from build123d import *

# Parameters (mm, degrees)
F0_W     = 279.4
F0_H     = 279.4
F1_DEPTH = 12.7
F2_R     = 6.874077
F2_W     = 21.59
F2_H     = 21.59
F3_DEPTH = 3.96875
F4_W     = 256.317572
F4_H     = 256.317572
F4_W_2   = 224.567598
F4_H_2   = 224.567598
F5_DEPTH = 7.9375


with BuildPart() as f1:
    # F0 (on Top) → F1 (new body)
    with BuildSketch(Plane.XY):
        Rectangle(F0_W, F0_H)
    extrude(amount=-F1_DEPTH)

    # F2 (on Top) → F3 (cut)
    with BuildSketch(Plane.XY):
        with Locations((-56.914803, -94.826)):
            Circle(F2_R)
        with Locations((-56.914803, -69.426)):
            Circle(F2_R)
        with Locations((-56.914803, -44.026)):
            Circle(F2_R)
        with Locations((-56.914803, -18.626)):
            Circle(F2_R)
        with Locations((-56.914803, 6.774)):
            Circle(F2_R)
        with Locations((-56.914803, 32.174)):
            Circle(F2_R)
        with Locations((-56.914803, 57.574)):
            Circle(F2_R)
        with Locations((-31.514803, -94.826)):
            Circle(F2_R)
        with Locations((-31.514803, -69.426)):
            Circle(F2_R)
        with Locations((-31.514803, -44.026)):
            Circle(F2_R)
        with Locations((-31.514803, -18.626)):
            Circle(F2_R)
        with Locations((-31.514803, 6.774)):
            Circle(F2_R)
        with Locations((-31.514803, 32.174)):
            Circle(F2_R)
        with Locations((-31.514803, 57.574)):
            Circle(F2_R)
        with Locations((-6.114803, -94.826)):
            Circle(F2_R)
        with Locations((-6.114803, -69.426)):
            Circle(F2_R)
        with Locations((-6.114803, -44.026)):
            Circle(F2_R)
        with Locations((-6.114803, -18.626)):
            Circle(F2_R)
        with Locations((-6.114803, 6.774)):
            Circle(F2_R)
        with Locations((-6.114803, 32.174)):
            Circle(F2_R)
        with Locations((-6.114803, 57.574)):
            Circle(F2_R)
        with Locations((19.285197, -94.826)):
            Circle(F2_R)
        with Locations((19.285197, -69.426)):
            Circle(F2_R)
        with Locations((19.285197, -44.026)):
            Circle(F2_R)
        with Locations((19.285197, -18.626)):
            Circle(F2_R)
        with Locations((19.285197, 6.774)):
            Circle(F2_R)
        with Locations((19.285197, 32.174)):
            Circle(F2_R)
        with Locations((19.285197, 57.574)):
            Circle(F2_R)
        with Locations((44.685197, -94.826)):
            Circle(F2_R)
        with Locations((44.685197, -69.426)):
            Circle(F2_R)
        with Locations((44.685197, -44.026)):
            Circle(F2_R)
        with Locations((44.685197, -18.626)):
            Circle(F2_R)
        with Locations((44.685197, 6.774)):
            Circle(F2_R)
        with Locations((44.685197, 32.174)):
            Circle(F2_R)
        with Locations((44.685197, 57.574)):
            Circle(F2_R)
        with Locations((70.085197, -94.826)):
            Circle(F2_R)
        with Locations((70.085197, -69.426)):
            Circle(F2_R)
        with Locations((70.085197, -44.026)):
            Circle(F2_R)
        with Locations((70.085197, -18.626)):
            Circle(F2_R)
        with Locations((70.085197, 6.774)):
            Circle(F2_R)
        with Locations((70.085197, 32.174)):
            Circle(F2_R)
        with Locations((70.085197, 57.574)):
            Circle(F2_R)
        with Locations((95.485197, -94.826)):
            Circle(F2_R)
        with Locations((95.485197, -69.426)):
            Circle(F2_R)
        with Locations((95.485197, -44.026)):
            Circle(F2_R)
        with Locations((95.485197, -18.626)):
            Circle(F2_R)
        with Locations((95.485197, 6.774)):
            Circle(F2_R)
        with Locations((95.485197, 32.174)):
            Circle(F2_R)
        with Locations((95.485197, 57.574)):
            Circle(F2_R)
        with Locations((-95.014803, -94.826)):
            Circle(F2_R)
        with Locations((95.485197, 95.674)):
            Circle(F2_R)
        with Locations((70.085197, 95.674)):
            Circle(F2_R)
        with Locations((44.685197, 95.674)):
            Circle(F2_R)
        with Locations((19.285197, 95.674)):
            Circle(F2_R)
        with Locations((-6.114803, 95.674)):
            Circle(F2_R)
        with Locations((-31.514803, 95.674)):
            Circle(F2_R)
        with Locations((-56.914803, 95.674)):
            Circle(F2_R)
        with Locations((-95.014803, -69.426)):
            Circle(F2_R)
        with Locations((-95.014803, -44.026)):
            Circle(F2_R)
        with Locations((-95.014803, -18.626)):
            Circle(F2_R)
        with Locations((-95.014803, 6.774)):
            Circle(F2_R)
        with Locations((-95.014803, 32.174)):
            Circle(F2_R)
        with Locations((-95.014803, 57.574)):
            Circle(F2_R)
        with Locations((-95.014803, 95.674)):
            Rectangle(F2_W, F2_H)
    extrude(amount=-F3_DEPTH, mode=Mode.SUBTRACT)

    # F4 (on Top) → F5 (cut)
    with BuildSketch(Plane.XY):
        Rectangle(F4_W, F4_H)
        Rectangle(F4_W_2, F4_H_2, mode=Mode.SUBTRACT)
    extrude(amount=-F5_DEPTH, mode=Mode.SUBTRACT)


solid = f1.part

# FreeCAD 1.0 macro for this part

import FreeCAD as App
import Part
import Sketcher
Q = App.Units.Quantity

doc = App.newDocument("Part")
body = doc.addObject("PartDesign::Body", "Body")

# Sketch on XY plane
sketch1 = body.newObject("Sketcher::SketchObject", "Sketch")
sketch1.AttachmentSupport = (doc.getObject("XY_Plane"), [""])
sketch1.MapMode = "FlatFace"
sketch1.addGeometry([
    Part.LineSegment(App.Vector(-140, 140, 0), App.Vector(-140, -140, 0)),
    Part.LineSegment(App.Vector(-140, -140, 0), App.Vector(140, -140, 0)),
    Part.LineSegment(App.Vector(140, -140, 0), App.Vector(140, 140, 0)),
    Part.LineSegment(App.Vector(140, 140, 0), App.Vector(-140, 140, 0)),
], False)
sketch1.addConstraint([
    Sketcher.Constraint("Coincident", 0, 2, 1, 1),
    Sketcher.Constraint("Coincident", 1, 2, 2, 1),
    Sketcher.Constraint("Coincident", 2, 2, 3, 1),
    Sketcher.Constraint("Coincident", 3, 2, 0, 1),
    Sketcher.Constraint("Vertical", 0),
    Sketcher.Constraint("Horizontal", 1),
    Sketcher.Constraint("Vertical", 2),
    Sketcher.Constraint("Horizontal", 3),
    Sketcher.Constraint("Symmetric", 0, 2, 2, 2, -1, 1),
    Sketcher.Constraint("Equal", 3, 0),
    Sketcher.Constraint("DistanceX", 1, 1, 1, 2, Q("11 in")),
])
pad1 = body.newObject("PartDesign::Pad", "Pad")
pad1.Profile = sketch1
pad1.Length = Q("0.5 in")
pad1.Reversed = True

# Sketch on XY plane
sketch2 = body.newObject("Sketcher::SketchObject", "Sketch001")
sketch2.AttachmentSupport = (doc.getObject("XY_Plane"), [""])
sketch2.MapMode = "FlatFace"
sketch2.addGeometry([
    Part.Circle(App.Vector(-57, -95, 0), App.Vector(0, 0, 1), 7),  # 0
    Part.Circle(App.Vector(-57, -69, 0), App.Vector(0, 0, 1), 7),  # 1
    Part.Circle(App.Vector(-57, -44, 0), App.Vector(0, 0, 1), 7),  # 2
    Part.Circle(App.Vector(-57, -19, 0), App.Vector(0, 0, 1), 7),  # 3
    Part.Circle(App.Vector(-57, 7, 0), App.Vector(0, 0, 1), 7),  # 4
    Part.Circle(App.Vector(-57, 32, 0), App.Vector(0, 0, 1), 7),  # 5
    Part.Circle(App.Vector(-57, 58, 0), App.Vector(0, 0, 1), 7),  # 6
    Part.Circle(App.Vector(-32, -95, 0), App.Vector(0, 0, 1), 7),  # 7
    Part.Circle(App.Vector(-32, -69, 0), App.Vector(0, 0, 1), 7),  # 8
    Part.Circle(App.Vector(-32, -44, 0), App.Vector(0, 0, 1), 7),  # 9
    Part.Circle(App.Vector(-32, -19, 0), App.Vector(0, 0, 1), 7),  # 10
    Part.Circle(App.Vector(-32, 7, 0), App.Vector(0, 0, 1), 7),  # 11
    Part.Circle(App.Vector(-32, 32, 0), App.Vector(0, 0, 1), 7),  # 12
    Part.Circle(App.Vector(-32, 58, 0), App.Vector(0, 0, 1), 7),  # 13
    Part.Circle(App.Vector(-6, -95, 0), App.Vector(0, 0, 1), 7),  # 14
    Part.Circle(App.Vector(-6, -69, 0), App.Vector(0, 0, 1), 7),  # 15
    Part.Circle(App.Vector(-6, -44, 0), App.Vector(0, 0, 1), 7),  # 16
    Part.Circle(App.Vector(-6, -19, 0), App.Vector(0, 0, 1), 7),  # 17
    Part.Circle(App.Vector(-6, 7, 0), App.Vector(0, 0, 1), 7),  # 18
    Part.Circle(App.Vector(-6, 32, 0), App.Vector(0, 0, 1), 7),  # 19
    Part.Circle(App.Vector(-6, 58, 0), App.Vector(0, 0, 1), 7),  # 20
    Part.Circle(App.Vector(19, -95, 0), App.Vector(0, 0, 1), 7),  # 21
    Part.Circle(App.Vector(19, -69, 0), App.Vector(0, 0, 1), 7),  # 22
    Part.Circle(App.Vector(19, -44, 0), App.Vector(0, 0, 1), 7),  # 23
    Part.Circle(App.Vector(19, -19, 0), App.Vector(0, 0, 1), 7),  # 24
    Part.Circle(App.Vector(19, 7, 0), App.Vector(0, 0, 1), 7),  # 25
    Part.Circle(App.Vector(19, 32, 0), App.Vector(0, 0, 1), 7),  # 26
    Part.Circle(App.Vector(19, 58, 0), App.Vector(0, 0, 1), 7),  # 27
    Part.Circle(App.Vector(45, -95, 0), App.Vector(0, 0, 1), 7),  # 28
    Part.Circle(App.Vector(45, -69, 0), App.Vector(0, 0, 1), 7),  # 29
    Part.Circle(App.Vector(45, -44, 0), App.Vector(0, 0, 1), 7),  # 30
    Part.Circle(App.Vector(45, -19, 0), App.Vector(0, 0, 1), 7),  # 31
    Part.Circle(App.Vector(45, 7, 0), App.Vector(0, 0, 1), 7),  # 32
    Part.Circle(App.Vector(45, 32, 0), App.Vector(0, 0, 1), 7),  # 33
    Part.Circle(App.Vector(45, 58, 0), App.Vector(0, 0, 1), 7),  # 34
    Part.Circle(App.Vector(70, -95, 0), App.Vector(0, 0, 1), 7),  # 35
    Part.Circle(App.Vector(70, -69, 0), App.Vector(0, 0, 1), 7),  # 36
    Part.Circle(App.Vector(70, -44, 0), App.Vector(0, 0, 1), 7),  # 37
    Part.Circle(App.Vector(70, -19, 0), App.Vector(0, 0, 1), 7),  # 38
    Part.Circle(App.Vector(70, 7, 0), App.Vector(0, 0, 1), 7),  # 39
    Part.Circle(App.Vector(70, 32, 0), App.Vector(0, 0, 1), 7),  # 40
    Part.Circle(App.Vector(70, 58, 0), App.Vector(0, 0, 1), 7),  # 41
    Part.Circle(App.Vector(95, -95, 0), App.Vector(0, 0, 1), 7),  # 42
    Part.Circle(App.Vector(95, -69, 0), App.Vector(0, 0, 1), 7),  # 43
    Part.Circle(App.Vector(95, -44, 0), App.Vector(0, 0, 1), 7),  # 44
    Part.Circle(App.Vector(95, -19, 0), App.Vector(0, 0, 1), 7),  # 45
    Part.Circle(App.Vector(95, 7, 0), App.Vector(0, 0, 1), 7),  # 46
    Part.Circle(App.Vector(95, 32, 0), App.Vector(0, 0, 1), 7),  # 47
    Part.Circle(App.Vector(95, 58, 0), App.Vector(0, 0, 1), 7),  # 48
    Part.Circle(App.Vector(-95, -95, 0), App.Vector(0, 0, 1), 7),  # 49
    Part.Circle(App.Vector(95, 96, 0), App.Vector(0, 0, 1), 7),  # 50
    Part.Circle(App.Vector(70, 96, 0), App.Vector(0, 0, 1), 7),  # 51
    Part.Circle(App.Vector(45, 96, 0), App.Vector(0, 0, 1), 7),  # 52
    Part.Circle(App.Vector(19, 96, 0), App.Vector(0, 0, 1), 7),  # 53
    Part.Circle(App.Vector(-6, 96, 0), App.Vector(0, 0, 1), 7),  # 54
    Part.Circle(App.Vector(-32, 96, 0), App.Vector(0, 0, 1), 7),  # 55
    Part.Circle(App.Vector(-57, 96, 0), App.Vector(0, 0, 1), 7),  # 56
    Part.Circle(App.Vector(-95, -69, 0), App.Vector(0, 0, 1), 7),  # 57
    Part.Circle(App.Vector(-95, -44, 0), App.Vector(0, 0, 1), 7),  # 58
    Part.Circle(App.Vector(-95, -19, 0), App.Vector(0, 0, 1), 7),  # 59
    Part.Circle(App.Vector(-95, 7, 0), App.Vector(0, 0, 1), 7),  # 60
    Part.Circle(App.Vector(-95, 32, 0), App.Vector(0, 0, 1), 7),  # 61
    Part.Circle(App.Vector(-95, 58, 0), App.Vector(0, 0, 1), 7),  # 62
    Part.LineSegment(App.Vector(-106, 106, 0), App.Vector(-106, 85, 0)),  # 63
    Part.LineSegment(App.Vector(-106, 85, 0), App.Vector(-84, 85, 0)),  # 64
    Part.LineSegment(App.Vector(-84, 85, 0), App.Vector(-84, 106, 0)),  # 65
    Part.LineSegment(App.Vector(-84, 106, 0), App.Vector(-106, 106, 0)),  # 66
], False)
sketch2.addConstraint([
    Sketcher.Constraint("Coincident", 63, 2, 64, 1),
    Sketcher.Constraint("Coincident", 64, 2, 65, 1),
    Sketcher.Constraint("Coincident", 65, 2, 66, 1),
    Sketcher.Constraint("Coincident", 66, 2, 63, 1),
    Sketcher.Constraint("Vertical", 63),
    Sketcher.Constraint("Horizontal", 64),
    Sketcher.Constraint("Vertical", 65),
    Sketcher.Constraint("Horizontal", 66),
    Sketcher.Constraint("Equal", 0, 1),
    Sketcher.Constraint("Equal", 1, 2),
    Sketcher.Constraint("Equal", 2, 3),
    Sketcher.Constraint("Equal", 3, 4),
    Sketcher.Constraint("Equal", 4, 5),
    Sketcher.Constraint("Equal", 5, 6),
    Sketcher.Constraint("Equal", 6, 7),
    Sketcher.Constraint("Equal", 7, 8),
    Sketcher.Constraint("Equal", 8, 9),
    Sketcher.Constraint("Equal", 9, 10),
    Sketcher.Constraint("Equal", 10, 11),
    Sketcher.Constraint("Equal", 11, 12),
    Sketcher.Constraint("Equal", 12, 13),
    Sketcher.Constraint("Equal", 13, 14),
    Sketcher.Constraint("Equal", 14, 15),
    Sketcher.Constraint("Equal", 15, 16),
    Sketcher.Constraint("Equal", 16, 17),
    Sketcher.Constraint("Equal", 17, 18),
    Sketcher.Constraint("Equal", 18, 19),
    Sketcher.Constraint("Equal", 19, 20),
    Sketcher.Constraint("Equal", 20, 21),
    Sketcher.Constraint("Equal", 21, 22),
    Sketcher.Constraint("Equal", 22, 23),
    Sketcher.Constraint("Equal", 23, 24),
    Sketcher.Constraint("Equal", 24, 25),
    Sketcher.Constraint("Equal", 25, 26),
    Sketcher.Constraint("Equal", 26, 27),
    Sketcher.Constraint("Equal", 27, 28),
    Sketcher.Constraint("Equal", 28, 29),
    Sketcher.Constraint("Equal", 29, 30),
    Sketcher.Constraint("Equal", 30, 31),
    Sketcher.Constraint("Equal", 31, 32),
    Sketcher.Constraint("Equal", 32, 33),
    Sketcher.Constraint("Equal", 33, 34),
    Sketcher.Constraint("Equal", 34, 35),
    Sketcher.Constraint("Equal", 35, 36),
    Sketcher.Constraint("Equal", 36, 37),
    Sketcher.Constraint("Equal", 37, 38),
    Sketcher.Constraint("Equal", 38, 39),
    Sketcher.Constraint("Equal", 39, 40),
    Sketcher.Constraint("Equal", 40, 41),
    Sketcher.Constraint("Equal", 41, 42),
    Sketcher.Constraint("Equal", 42, 43),
    Sketcher.Constraint("Equal", 43, 44),
    Sketcher.Constraint("Equal", 44, 45),
    Sketcher.Constraint("Equal", 45, 46),
    Sketcher.Constraint("Equal", 46, 47),
    Sketcher.Constraint("Equal", 47, 48),
    Sketcher.Constraint("Equal", 48, 49),
    Sketcher.Constraint("Equal", 49, 50),
    Sketcher.Constraint("Equal", 50, 51),
    Sketcher.Constraint("Equal", 51, 52),
    Sketcher.Constraint("Equal", 52, 53),
    Sketcher.Constraint("Equal", 53, 54),
    Sketcher.Constraint("Equal", 54, 55),
    Sketcher.Constraint("Equal", 55, 56),
    Sketcher.Constraint("Equal", 56, 57),
    Sketcher.Constraint("Equal", 57, 58),
    Sketcher.Constraint("Equal", 58, 59),
    Sketcher.Constraint("Equal", 59, 60),
    Sketcher.Constraint("Equal", 60, 61),
    Sketcher.Constraint("Equal", 61, 62),
    Sketcher.Constraint("Horizontal", 0, 3, 7, 3),
    Sketcher.Constraint("Horizontal", 1, 3, 8, 3),
    Sketcher.Constraint("Horizontal", 2, 3, 9, 3),
    Sketcher.Constraint("Horizontal", 3, 3, 10, 3),
    Sketcher.Constraint("Horizontal", 4, 3, 11, 3),
    Sketcher.Constraint("Horizontal", 5, 3, 12, 3),
    Sketcher.Constraint("Horizontal", 6, 3, 13, 3),
    Sketcher.Constraint("Horizontal", 7, 3, 14, 3),
    Sketcher.Constraint("Horizontal", 8, 3, 15, 3),
    Sketcher.Constraint("Horizontal", 9, 3, 16, 3),
    Sketcher.Constraint("Horizontal", 10, 3, 17, 3),
    Sketcher.Constraint("Horizontal", 11, 3, 18, 3),
    Sketcher.Constraint("Horizontal", 12, 3, 19, 3),
    Sketcher.Constraint("Horizontal", 13, 3, 20, 3),
    Sketcher.Constraint("Horizontal", 14, 3, 21, 3),
    Sketcher.Constraint("Horizontal", 15, 3, 22, 3),
    Sketcher.Constraint("Horizontal", 16, 3, 23, 3),
    Sketcher.Constraint("Horizontal", 17, 3, 24, 3),
    Sketcher.Constraint("Horizontal", 18, 3, 25, 3),
    Sketcher.Constraint("Horizontal", 19, 3, 26, 3),
    Sketcher.Constraint("Horizontal", 20, 3, 27, 3),
    Sketcher.Constraint("Horizontal", 21, 3, 28, 3),
    Sketcher.Constraint("Horizontal", 22, 3, 29, 3),
    Sketcher.Constraint("Horizontal", 23, 3, 30, 3),
    Sketcher.Constraint("Horizontal", 24, 3, 31, 3),
    Sketcher.Constraint("Horizontal", 25, 3, 32, 3),
    Sketcher.Constraint("Horizontal", 26, 3, 33, 3),
    Sketcher.Constraint("Horizontal", 27, 3, 34, 3),
    Sketcher.Constraint("Horizontal", 28, 3, 35, 3),
    Sketcher.Constraint("Horizontal", 29, 3, 36, 3),
    Sketcher.Constraint("Horizontal", 30, 3, 37, 3),
    Sketcher.Constraint("Horizontal", 31, 3, 38, 3),
    Sketcher.Constraint("Horizontal", 32, 3, 39, 3),
    Sketcher.Constraint("Horizontal", 33, 3, 40, 3),
    Sketcher.Constraint("Horizontal", 34, 3, 41, 3),
    Sketcher.Constraint("Horizontal", 35, 3, 42, 3),
    Sketcher.Constraint("Horizontal", 36, 3, 43, 3),
    Sketcher.Constraint("Horizontal", 37, 3, 44, 3),
    Sketcher.Constraint("Horizontal", 38, 3, 45, 3),
    Sketcher.Constraint("Horizontal", 39, 3, 46, 3),
    Sketcher.Constraint("Horizontal", 40, 3, 47, 3),
    Sketcher.Constraint("Horizontal", 41, 3, 48, 3),
    Sketcher.Constraint("Horizontal", 42, 3, 49, 3),
    Sketcher.Constraint("Horizontal", 50, 3, 51, 3),
    Sketcher.Constraint("Horizontal", 51, 3, 52, 3),
    Sketcher.Constraint("Horizontal", 52, 3, 53, 3),
    Sketcher.Constraint("Horizontal", 53, 3, 54, 3),
    Sketcher.Constraint("Horizontal", 54, 3, 55, 3),
    Sketcher.Constraint("Horizontal", 55, 3, 56, 3),
    Sketcher.Constraint("Horizontal", 43, 3, 57, 3),
    Sketcher.Constraint("Horizontal", 44, 3, 58, 3),
    Sketcher.Constraint("Horizontal", 45, 3, 59, 3),
    Sketcher.Constraint("Horizontal", 46, 3, 60, 3),
    Sketcher.Constraint("Horizontal", 47, 3, 61, 3),
    Sketcher.Constraint("Horizontal", 48, 3, 62, 3),
    Sketcher.Constraint("Vertical", 0, 3, 1, 3),
    Sketcher.Constraint("Vertical", 1, 3, 2, 3),
    Sketcher.Constraint("Vertical", 2, 3, 3, 3),
    Sketcher.Constraint("Vertical", 3, 3, 4, 3),
    Sketcher.Constraint("Vertical", 4, 3, 5, 3),
    Sketcher.Constraint("Vertical", 5, 3, 6, 3),
    Sketcher.Constraint("Vertical", 7, 3, 8, 3),
    Sketcher.Constraint("Vertical", 8, 3, 9, 3),
    Sketcher.Constraint("Vertical", 9, 3, 10, 3),
    Sketcher.Constraint("Vertical", 10, 3, 11, 3),
    Sketcher.Constraint("Vertical", 11, 3, 12, 3),
    Sketcher.Constraint("Vertical", 12, 3, 13, 3),
    Sketcher.Constraint("Vertical", 14, 3, 15, 3),
    Sketcher.Constraint("Vertical", 15, 3, 16, 3),
    Sketcher.Constraint("Vertical", 16, 3, 17, 3),
    Sketcher.Constraint("Vertical", 17, 3, 18, 3),
    Sketcher.Constraint("Vertical", 18, 3, 19, 3),
    Sketcher.Constraint("Vertical", 19, 3, 20, 3),
    Sketcher.Constraint("Vertical", 21, 3, 22, 3),
    Sketcher.Constraint("Vertical", 22, 3, 23, 3),
    Sketcher.Constraint("Vertical", 23, 3, 24, 3),
    Sketcher.Constraint("Vertical", 24, 3, 25, 3),
    Sketcher.Constraint("Vertical", 25, 3, 26, 3),
    Sketcher.Constraint("Vertical", 26, 3, 27, 3),
    Sketcher.Constraint("Vertical", 28, 3, 29, 3),
    Sketcher.Constraint("Vertical", 29, 3, 30, 3),
    Sketcher.Constraint("Vertical", 30, 3, 31, 3),
    Sketcher.Constraint("Vertical", 31, 3, 32, 3),
    Sketcher.Constraint("Vertical", 32, 3, 33, 3),
    Sketcher.Constraint("Vertical", 33, 3, 34, 3),
    Sketcher.Constraint("Vertical", 35, 3, 36, 3),
    Sketcher.Constraint("Vertical", 36, 3, 37, 3),
    Sketcher.Constraint("Vertical", 37, 3, 38, 3),
    Sketcher.Constraint("Vertical", 38, 3, 39, 3),
    Sketcher.Constraint("Vertical", 39, 3, 40, 3),
    Sketcher.Constraint("Vertical", 40, 3, 41, 3),
    Sketcher.Constraint("Vertical", 42, 3, 43, 3),
    Sketcher.Constraint("Vertical", 43, 3, 44, 3),
    Sketcher.Constraint("Vertical", 44, 3, 45, 3),
    Sketcher.Constraint("Vertical", 45, 3, 46, 3),
    Sketcher.Constraint("Vertical", 46, 3, 47, 3),
    Sketcher.Constraint("Vertical", 47, 3, 48, 3),
    Sketcher.Constraint("Vertical", 48, 3, 50, 3),
    Sketcher.Constraint("Vertical", 41, 3, 51, 3),
    Sketcher.Constraint("Vertical", 34, 3, 52, 3),
    Sketcher.Constraint("Vertical", 27, 3, 53, 3),
    Sketcher.Constraint("Vertical", 20, 3, 54, 3),
    Sketcher.Constraint("Vertical", 13, 3, 55, 3),
    Sketcher.Constraint("Vertical", 6, 3, 56, 3),
    Sketcher.Constraint("Vertical", 49, 3, 57, 3),
    Sketcher.Constraint("Vertical", 57, 3, 58, 3),
    Sketcher.Constraint("Vertical", 58, 3, 59, 3),
    Sketcher.Constraint("Vertical", 59, 3, 60, 3),
    Sketcher.Constraint("Vertical", 60, 3, 61, 3),
    Sketcher.Constraint("Vertical", 61, 3, 62, 3),
    Sketcher.Constraint("Equal", 66, 63),
    Sketcher.Constraint("DistanceX", 64, 1, 64, 2, Q("0.85 in")),
    Sketcher.Constraint("Diameter", 0, 13.748154),
    Sketcher.Constraint("DistanceY", 0, 3, -1, 1, 94.826),
    Sketcher.Constraint("DistanceY", 1, 3, -1, 1, 69.426),
    Sketcher.Constraint("DistanceY", 2, 3, -1, 1, 44.026),
    Sketcher.Constraint("DistanceY", 3, 3, -1, 1, 18.626),
    Sketcher.Constraint("DistanceY", -1, 1, 4, 3, 6.774),
    Sketcher.Constraint("DistanceY", -1, 1, 5, 3, 32.174),
    Sketcher.Constraint("DistanceY", -1, 1, 6, 3, 57.574),
    Sketcher.Constraint("DistanceY", -1, 1, 50, 3, 95.674),
    Sketcher.Constraint("DistanceY", -1, 1, 63, 2, 84.879),
    Sketcher.Constraint("DistanceX", 0, 3, -1, 1, 56.914803),
    Sketcher.Constraint("DistanceX", 7, 3, -1, 1, 31.514803),
    Sketcher.Constraint("DistanceX", 14, 3, -1, 1, 6.114803),
    Sketcher.Constraint("DistanceX", -1, 1, 21, 3, 19.285197),
    Sketcher.Constraint("DistanceX", -1, 1, 28, 3, 44.685197),
    Sketcher.Constraint("DistanceX", -1, 1, 35, 3, 70.085197),
    Sketcher.Constraint("DistanceX", -1, 1, 42, 3, 95.485197),
    Sketcher.Constraint("DistanceX", 49, 3, -1, 1, 95.014803),
    Sketcher.Constraint("DistanceX", 63, 2, -1, 1, 105.809803),
])
pocket1 = body.newObject("PartDesign::Pocket", "Pocket")
pocket1.Profile = sketch2
pocket1.Length = Q("0.15625 in")

# Sketch on XY plane
sketch3 = body.newObject("Sketcher::SketchObject", "Sketch002")
sketch3.AttachmentSupport = (doc.getObject("XY_Plane"), [""])
sketch3.MapMode = "FlatFace"
sketch3.addGeometry([
    Part.LineSegment(App.Vector(-128, 128, 0), App.Vector(-128, -128, 0)),  # 0
    Part.LineSegment(App.Vector(-128, -128, 0), App.Vector(128, -128, 0)),  # 1
    Part.LineSegment(App.Vector(128, -128, 0), App.Vector(128, 128, 0)),  # 2
    Part.LineSegment(App.Vector(128, 128, 0), App.Vector(-128, 128, 0)),  # 3
    Part.LineSegment(App.Vector(112, -112, 0), App.Vector(-112, -112, 0)),  # 4
    Part.LineSegment(App.Vector(-112, -112, 0), App.Vector(-112, 112, 0)),  # 5
    Part.LineSegment(App.Vector(-112, 112, 0), App.Vector(112, 112, 0)),  # 6
    Part.LineSegment(App.Vector(112, 112, 0), App.Vector(112, -112, 0)),  # 7
], False)
sketch3.addConstraint([
    Sketcher.Constraint("Coincident", 0, 2, 1, 1),
    Sketcher.Constraint("Coincident", 1, 2, 2, 1),
    Sketcher.Constraint("Coincident", 2, 2, 3, 1),
    Sketcher.Constraint("Coincident", 3, 2, 0, 1),
    Sketcher.Constraint("Coincident", 4, 2, 5, 1),
    Sketcher.Constraint("Coincident", 5, 2, 6, 1),
    Sketcher.Constraint("Coincident", 6, 2, 7, 1),
    Sketcher.Constraint("Coincident", 7, 2, 4, 1),
    Sketcher.Constraint("Vertical", 0),
    Sketcher.Constraint("Horizontal", 1),
    Sketcher.Constraint("Vertical", 2),
    Sketcher.Constraint("Horizontal", 3),
    Sketcher.Constraint("Horizontal", 4),
    Sketcher.Constraint("Vertical", 5),
    Sketcher.Constraint("Horizontal", 6),
    Sketcher.Constraint("Vertical", 7),
    Sketcher.Constraint("Symmetric", 0, 2, 2, 2, -1, 1),
    Sketcher.Constraint("Symmetric", 4, 2, 6, 2, -1, 1),
    Sketcher.Constraint("Equal", 3, 0),
    Sketcher.Constraint("Equal", 6, 5),
    Sketcher.Constraint("DistanceX", 4, 2, 4, 1, 224.567598),
    Sketcher.Constraint("DistanceX", 1, 1, 1, 2, 256.317572),
])
pocket2 = body.newObject("PartDesign::Pocket", "Pocket001")
pocket2.Profile = sketch3
pocket2.Length = Q("0.3125 in")

doc.recompute()
